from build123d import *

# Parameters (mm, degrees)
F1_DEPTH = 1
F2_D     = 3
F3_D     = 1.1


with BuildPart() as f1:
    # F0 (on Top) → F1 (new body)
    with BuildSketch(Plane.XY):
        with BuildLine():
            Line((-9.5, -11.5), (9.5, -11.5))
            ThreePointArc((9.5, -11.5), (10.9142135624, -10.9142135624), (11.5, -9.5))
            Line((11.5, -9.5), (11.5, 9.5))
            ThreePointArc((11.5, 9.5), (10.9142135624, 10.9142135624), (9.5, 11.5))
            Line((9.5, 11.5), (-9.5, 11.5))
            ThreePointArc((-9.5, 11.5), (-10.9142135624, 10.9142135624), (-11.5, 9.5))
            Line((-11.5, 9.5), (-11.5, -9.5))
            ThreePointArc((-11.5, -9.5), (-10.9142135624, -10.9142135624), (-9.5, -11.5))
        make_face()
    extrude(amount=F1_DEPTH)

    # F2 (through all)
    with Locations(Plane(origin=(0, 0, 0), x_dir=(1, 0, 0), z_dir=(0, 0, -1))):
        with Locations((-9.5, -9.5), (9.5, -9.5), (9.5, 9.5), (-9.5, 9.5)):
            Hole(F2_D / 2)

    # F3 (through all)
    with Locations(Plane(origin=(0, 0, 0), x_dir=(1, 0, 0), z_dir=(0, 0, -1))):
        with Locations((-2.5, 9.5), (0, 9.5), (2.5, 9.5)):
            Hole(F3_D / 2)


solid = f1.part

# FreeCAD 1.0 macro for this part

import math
import FreeCAD as App
import Part
import Sketcher
from FreeCAD import Vector
Q = App.Units.Quantity

doc = App.newDocument("Part")
body = doc.addObject("PartDesign::Body", "Body")

sketch1 = body.newObject("Sketcher::SketchObject", "Sketch")
sketch1.AttachmentSupport = (doc.getObject("XY_Plane"), [""])
sketch1.MapMode = "FlatFace"
sketch1.addGeometry([
    Part.LineSegment(Vector(-9.5, -11.5, 0), Vector(9.5, -11.5, 0)),
    Part.ArcOfCircle(Part.Circle(Vector(9.5, -9.5, 0), Vector(0, 0, 1), 2), math.radians(-90), math.radians(0)),
    Part.LineSegment(Vector(11.5, -9.5, 0), Vector(11.5, 9.5, 0)),
    Part.ArcOfCircle(Part.Circle(Vector(9.5, 9.5, 0), Vector(0, 0, 1), 2), math.radians(0), math.radians(90)),
    Part.LineSegment(Vector(9.5, 11.5, 0), Vector(-9.5, 11.5, 0)),
    Part.ArcOfCircle(Part.Circle(Vector(-9.5, 9.5, 0), Vector(0, 0, 1), 2), math.radians(90), math.radians(180)),
    Part.LineSegment(Vector(-11.5, 9.5, 0), Vector(-11.5, -9.5, 0)),
    Part.ArcOfCircle(Part.Circle(Vector(-9.5, -9.5, 0), Vector(0, 0, 1), 2), math.radians(180), math.radians(270)),
], False)
sketch1.addConstraint([
    Sketcher.Constraint("Tangent", 0, 2, 1, 1),
    Sketcher.Constraint("Tangent", 1, 2, 2, 1),
    Sketcher.Constraint("Tangent", 2, 2, 3, 1),
    Sketcher.Constraint("Tangent", 3, 2, 4, 1),
    Sketcher.Constraint("Tangent", 4, 2, 5, 1),
    Sketcher.Constraint("Tangent", 5, 2, 6, 1),
    Sketcher.Constraint("Tangent", 6, 2, 7, 1),
    Sketcher.Constraint("Tangent", 7, 2, 0, 1),
    Sketcher.Constraint("Horizontal", 0),
    Sketcher.Constraint("Vertical", 2),
    Sketcher.Constraint("Horizontal", 4),
    Sketcher.Constraint("Vertical", 6),
    Sketcher.Constraint("Equal", 1, 3),
    Sketcher.Constraint("Equal", 3, 5),
    Sketcher.Constraint("Equal", 5, 7),
    Sketcher.Constraint("Symmetric", 1, 3, 5, 3, -1, 1),
    Sketcher.Constraint("Equal", 4, 2),
    Sketcher.Constraint("Radius", 1, Q("2 mm")),
    Sketcher.Constraint("DistanceX", 0, 1, 0, 2, Q("19 mm")),
])
pad1 = body.newObject("PartDesign::Pad", "Pad")
pad1.Profile = sketch1
pad1.Length = 1

sketch2 = body.newObject("Sketcher::SketchObject", "Sketch001")
sketch2.AttachmentSupport = (doc.getObject("XY_Plane"), [""])
sketch2.MapMode = "FlatFace"
sketch2.addGeometry([
    Part.Circle(Vector(-9.5, 9.5, 0), Vector(0, 0, 1), 1.5),
    Part.Circle(Vector(9.5, 9.5, 0), Vector(0, 0, 1), 1.5),
    Part.Circle(Vector(9.5, -9.5, 0), Vector(0, 0, 1), 1.5),
    Part.Circle(Vector(-9.5, -9.5, 0), Vector(0, 0, 1), 1.5),
], False)
sketch2.addConstraint([
    Sketcher.Constraint("Equal", 0, 1),
    Sketcher.Constraint("Equal", 1, 2),
    Sketcher.Constraint("Equal", 2, 3),
    Sketcher.Constraint("Symmetric", 0, 3, 2, 3, -1, 1),
    Sketcher.Constraint("Symmetric", 1, 3, 3, 3, -1, 1),
    Sketcher.Constraint("Symmetric", 0, 3, 1, 3, -2),
    Sketcher.Constraint("Diameter", 0, Q("3 mm")),
    Sketcher.Constraint("DistanceX", 0, 3, 1, 3, Q("19 mm")),
    Sketcher.Constraint("DistanceY", 2, 3, 1, 3, Q("19 mm")),
])
doc.recompute()
hole = body.newObject("PartDesign::Hole", "Hole")
hole.Profile = sketch2
hole.ThreadType = "None"
hole.Diameter = 3
hole.DepthType = "ThroughAll"
hole.Reversed = True

sketch3 = body.newObject("Sketcher::SketchObject", "Sketch002")
sketch3.AttachmentSupport = (doc.getObject("XY_Plane"), [""])
sketch3.MapMode = "FlatFace"
sketch3.addGeometry([
    Part.Circle(Vector(-2.5, -9.5, 0), Vector(0, 0, 1), 0.6),
    Part.Circle(Vector(0, -9.5, 0), Vector(0, 0, 1), 0.6),
    Part.Circle(Vector(2.5, -9.5, 0), Vector(0, 0, 1), 0.6),
], False)
sketch3.addConstraint([
    Sketcher.Constraint("Equal", 0, 1),
    Sketcher.Constraint("Equal", 1, 2),
    Sketcher.Constraint("Symmetric", 0, 3, 2, 3, -2),
    Sketcher.Constraint("PointOnObject", 1, 3, -2),
    Sketcher.Constraint("Horizontal", 0, 3, 1, 3),
    Sketcher.Constraint("Diameter", 0, Q("1.1 mm")),
    Sketcher.Constraint("DistanceX", 0, 3, 2, 3, Q("5 mm")),
    Sketcher.Constraint("DistanceY", 0, 3, -1, 1, Q("9.5 mm")),
])
doc.recompute()
hole2 = body.newObject("PartDesign::Hole", "Hole001")
hole2.Profile = sketch3
hole2.ThreadType = "None"
hole2.Diameter = 1.1
hole2.DepthType = "ThroughAll"
hole2.Reversed = True

doc.recompute()
